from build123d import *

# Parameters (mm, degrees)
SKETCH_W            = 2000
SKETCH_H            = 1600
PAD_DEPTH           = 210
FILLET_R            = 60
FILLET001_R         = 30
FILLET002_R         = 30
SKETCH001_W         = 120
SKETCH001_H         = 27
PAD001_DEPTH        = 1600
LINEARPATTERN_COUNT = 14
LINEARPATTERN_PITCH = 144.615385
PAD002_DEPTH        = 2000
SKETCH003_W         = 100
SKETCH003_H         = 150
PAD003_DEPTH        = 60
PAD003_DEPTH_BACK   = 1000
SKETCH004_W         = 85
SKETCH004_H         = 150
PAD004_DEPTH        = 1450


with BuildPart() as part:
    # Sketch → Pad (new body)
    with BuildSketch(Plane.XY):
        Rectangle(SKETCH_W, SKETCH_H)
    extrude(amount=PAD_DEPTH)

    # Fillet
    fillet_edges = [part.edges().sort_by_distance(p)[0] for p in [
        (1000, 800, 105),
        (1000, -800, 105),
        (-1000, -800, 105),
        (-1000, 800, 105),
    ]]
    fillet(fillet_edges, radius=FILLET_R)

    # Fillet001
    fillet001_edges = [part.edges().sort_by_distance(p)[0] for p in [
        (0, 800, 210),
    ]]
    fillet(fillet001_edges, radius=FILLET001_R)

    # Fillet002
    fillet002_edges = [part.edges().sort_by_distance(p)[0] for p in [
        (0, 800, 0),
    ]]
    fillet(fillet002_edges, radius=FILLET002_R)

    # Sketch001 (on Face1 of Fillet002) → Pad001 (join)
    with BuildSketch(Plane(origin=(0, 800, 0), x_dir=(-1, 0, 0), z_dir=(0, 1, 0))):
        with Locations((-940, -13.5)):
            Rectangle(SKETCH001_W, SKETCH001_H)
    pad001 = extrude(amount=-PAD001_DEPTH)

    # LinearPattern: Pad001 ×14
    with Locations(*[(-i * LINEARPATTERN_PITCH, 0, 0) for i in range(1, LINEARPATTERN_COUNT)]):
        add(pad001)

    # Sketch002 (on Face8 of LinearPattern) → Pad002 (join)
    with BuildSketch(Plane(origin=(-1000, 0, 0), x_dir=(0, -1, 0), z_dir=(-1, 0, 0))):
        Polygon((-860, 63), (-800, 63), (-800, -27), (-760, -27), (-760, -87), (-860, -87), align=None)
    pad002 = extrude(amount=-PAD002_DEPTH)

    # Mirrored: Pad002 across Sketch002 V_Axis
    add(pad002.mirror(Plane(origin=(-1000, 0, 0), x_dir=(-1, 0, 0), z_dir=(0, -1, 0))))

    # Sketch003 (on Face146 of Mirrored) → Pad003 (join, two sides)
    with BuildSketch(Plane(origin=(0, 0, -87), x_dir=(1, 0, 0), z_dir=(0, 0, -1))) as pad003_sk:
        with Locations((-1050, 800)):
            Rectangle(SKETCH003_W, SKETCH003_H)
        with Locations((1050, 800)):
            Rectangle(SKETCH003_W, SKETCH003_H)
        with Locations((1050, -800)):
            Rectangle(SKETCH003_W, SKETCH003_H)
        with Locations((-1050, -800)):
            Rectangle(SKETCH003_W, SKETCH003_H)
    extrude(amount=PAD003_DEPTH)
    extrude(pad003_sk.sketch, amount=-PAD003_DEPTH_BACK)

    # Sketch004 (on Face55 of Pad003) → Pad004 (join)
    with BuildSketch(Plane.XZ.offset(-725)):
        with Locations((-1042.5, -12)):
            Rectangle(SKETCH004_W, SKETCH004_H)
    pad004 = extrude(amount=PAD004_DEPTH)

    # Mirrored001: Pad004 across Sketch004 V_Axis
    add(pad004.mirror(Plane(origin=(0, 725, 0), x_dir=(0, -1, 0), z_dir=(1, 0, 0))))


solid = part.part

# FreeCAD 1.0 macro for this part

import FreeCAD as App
import Part
import Sketcher

V = App.Vector
Q = App.Units.Quantity


def edges_at(feature, points):
    """Names of the edges that pass closest to the given points."""
    edges = feature.Shape.Edges
    near = lambda p: min(range(len(edges)), key=lambda i: edges[i].distToShape(Part.Vertex(*p))[0])
    return sorted({f"Edge{near(p) + 1}" for p in points})


def add_polygon(sketch, points):
    """Adds a closed chain of lines whose ends are joined by coincident constraints."""
    first, n = sketch.GeometryCount, len(points)
    for a, b in zip(points, points[1:] + points[:1]):
        sketch.addGeometry(Part.LineSegment(App.Vector(*a, 0), App.Vector(*b, 0)), False)
    for i in range(n):
        sketch.addConstraint(Sketcher.Constraint("Coincident", first + i, 2, first + (i + 1) % n, 1))

doc = App.newDocument("Part")
params = doc.addObject("Spreadsheet::Sheet", "Params")
for row, (alias, value) in enumerate([
    ("sketch1_width", "2000 mm"),
    ("sketch1_height", "1600 mm"),
    ("pad1_length", "210 mm"),
    ("fillet_radius", "60 mm"),
    ("fillet2_radius", "30 mm"),
    ("fillet3_radius", "30 mm"),
    ("sketch2_width", "120 mm"),
    ("sketch2_height", "27 mm"),
    ("pad2_length", "1600 mm"),
    ("linearpattern_pitch", "144.615385 mm"),
    ("sketch3_width", "60 mm"),
    ("sketch3_width2", "100 mm"),
    ("sketch3_height", "150 mm"),
    ("pad3_length", "2000 mm"),
    ("sketch4_width", "100 mm"),
    ("sketch4_height", "150 mm"),
    ("pad4_length", "60 mm"),
    ("pad4_length2", "1000 mm"),
    ("sketch5_width", "85 mm"),
    ("sketch5_height", "150 mm"),
    ("pad5_length", "1450 mm"),
], start=1):
    params.set(f"A{row}", alias)
    params.set(f"B{row}", "=" + value)
    params.setAlias(f"B{row}", alias)

body = doc.addObject("PartDesign::Body", "Body")

# Sketch on XY plane
sketch1 = body.newObject("Sketcher::SketchObject", "Sketch")
sketch1.AttachmentSupport = (doc.getObject("XY_Plane"), [""])
sketch1.MapMode = "FlatFace"
add_polygon(sketch1, [(-1000, 800), (-1000, -800), (1000, -800), (1000, 800)])  # lines 0-3
sketch1.addConstraint([
    Sketcher.Constraint("Vertical", 0),
    Sketcher.Constraint("Horizontal", 1),
    Sketcher.Constraint("Vertical", 2),
    Sketcher.Constraint("Horizontal", 3),
    Sketcher.Constraint("Symmetric", 0, 2, 2, 2, -1, 1),
    Sketcher.Constraint("DistanceX", 1, 1, 1, 2, Q("2000 mm")),
    Sketcher.Constraint("DistanceY", 0, 2, 0, 1, Q("1600 mm")),
])
sketch1.setExpression("Constraints[9]", "Params.sketch1_width")
sketch1.setExpression("Constraints[10]", "Params.sketch1_height")
pad1 = body.newObject("PartDesign::Pad", "Pad")
pad1.Profile = sketch1
pad1.setExpression("Length", "Params.pad1_length")
doc.recompute()

fillet = body.newObject("PartDesign::Fillet", "Fillet")
fillet.Base = (pad1, edges_at(pad1, [
    (1000, 800, 105),
    (1000, -800, 105),
    (-1000, -800, 105),
    (-1000, 800, 105),
]))
fillet.setExpression("Radius", "Params.fillet_radius")
doc.recompute()

fillet2 = body.newObject("PartDesign::Fillet", "Fillet001")
fillet2.Base = (fillet, edges_at(fillet, [(0, 800, 210)]))
fillet2.setExpression("Radius", "Params.fillet2_radius")
doc.recompute()

fillet3 = body.newObject("PartDesign::Fillet", "Fillet002")
fillet3.Base = (fillet2, edges_at(fillet2, [(0, 800, 0)]))
fillet3.setExpression("Radius", "Params.fillet3_radius")

# Sketch on XZ plane
sketch2 = body.newObject("Sketcher::SketchObject", "Sketch001")
sketch2.AttachmentSupport = (doc.getObject("XZ_Plane"), [""])
sketch2.MapMode = "FlatFace"
sketch2.AttachmentOffset = App.Placement(V(0, 0, -800), App.Rotation())
add_polygon(sketch2, [(1000, 0), (1000, -27), (880, -27), (880, 0)])  # lines 0-3
sketch2.addConstraint([
    Sketcher.Constraint("Vertical", 0),
    Sketcher.Constraint("Horizontal", 1),
    Sketcher.Constraint("Vertical", 2),
    Sketcher.Constraint("Horizontal", 3),
    Sketcher.Constraint("PointOnObject", 2, 2, -1),
    Sketcher.Constraint("DistanceX", 1, 2, 1, 1, Q("120 mm")),
    Sketcher.Constraint("DistanceY", 0, 2, 0, 1, Q("27 mm")),
    Sketcher.Constraint("DistanceX", -1, 1, 0, 2, Q("1000 mm")),
])
sketch2.setExpression("Constraints[9]", "Params.sketch2_width")
sketch2.setExpression("Constraints[10]", "Params.sketch2_height")
pad2 = body.newObject("PartDesign::Pad", "Pad001")
pad2.Profile = sketch2
pad2.setExpression("Length", "Params.pad2_length")
doc.recompute()

linearpattern = body.newObject("PartDesign::LinearPattern", "LinearPattern")
linearpattern.Originals = [pad2]
linearpattern.Direction = (doc.getObject("X_Axis"), [""])
linearpattern.Mode = "offset"
linearpattern.setExpression("Offset", "Params.linearpattern_pitch")
linearpattern.Occurrences = 14
linearpattern.Reversed = True
body.Tip = linearpattern

# Sketch on YZ plane
sketch3 = body.newObject("Sketcher::SketchObject", "Sketch002")
sketch3.AttachmentSupport = (doc.getObject("YZ_Plane"), [""])
sketch3.MapMode = "FlatFace"
sketch3.AttachmentOffset = App.Placement(V(0, 0, -1000), App.Rotation())
add_polygon(sketch3, [(800, 63), (860, 63), (860, -87), (760, -87), (760, -27), (800, -27)])  # lines 0-5
sketch3.addConstraint([
    Sketcher.Constraint("Horizontal", 0),
    Sketcher.Constraint("Vertical", 1),
    Sketcher.Constraint("Horizontal", 2),
    Sketcher.Constraint("Vertical", 3),
    Sketcher.Constraint("Horizontal", 4),
    Sketcher.Constraint("Vertical", 5),
    Sketcher.Constraint("Equal", 0, 3),
    Sketcher.Constraint("DistanceX", 0, 1, 0, 2, Q("60 mm")),
    Sketcher.Constraint("DistanceX", 2, 2, 2, 1, Q("100 mm")),
    Sketcher.Constraint("DistanceY", 1, 2, 1, 1, Q("150 mm")),
    Sketcher.Constraint("DistanceX", -1, 1, 0, 2, Q("860 mm")),
    Sketcher.Constraint("DistanceY", -1, 1, 0, 2, Q("63 mm")),
])
sketch3.setExpression("Constraints[13]", "Params.sketch3_width")
sketch3.setExpression("Constraints[14]", "Params.sketch3_width2")
sketch3.setExpression("Constraints[15]", "Params.sketch3_height")
pad3 = body.newObject("PartDesign::Pad", "Pad002")
pad3.Profile = sketch3
pad3.setExpression("Length", "Params.pad3_length")
doc.recompute()

mirrored = body.newObject("PartDesign::Mirrored", "Mirrored")
mirrored.Originals = [pad3]
mirrored.MirrorPlane = (doc.getObject("XZ_Plane"), [""])
body.Tip = mirrored

# Sketch on XY plane
sketch4 = body.newObject("Sketcher::SketchObject", "Sketch003")
sketch4.AttachmentSupport = (doc.getObject("XY_Plane"), [""])
sketch4.MapMode = "FlatFace"
sketch4.AttachmentOffset = App.Placement(V(0, 0, -87), App.Rotation())
add_polygon(sketch4, [(-1100, -875), (-1100, -725), (-1000, -725), (-1000, -875)])  # lines 0-3
add_polygon(sketch4, [(1000, -875), (1000, -725), (1100, -725), (1100, -875)])  # lines 4-7
add_polygon(sketch4, [(1000, 725), (1000, 875), (1100, 875), (1100, 725)])  # lines 8-11
add_polygon(sketch4, [(-1100, 725), (-1100, 875), (-1000, 875), (-1000, 725)])  # lines 12-15
sketch4.addConstraint([
    Sketcher.Constraint("Vertical", 0),
    Sketcher.Constraint("Horizontal", 1),
    Sketcher.Constraint("Vertical", 2),
    Sketcher.Constraint("Horizontal", 3),
    Sketcher.Constraint("Vertical", 4),
    Sketcher.Constraint("Horizontal", 5),
    Sketcher.Constraint("Vertical", 6),
    Sketcher.Constraint("Horizontal", 7),
    Sketcher.Constraint("Vertical", 8),
    Sketcher.Constraint("Horizontal", 9),
    Sketcher.Constraint("Vertical", 10),
    Sketcher.Constraint("Horizontal", 11),
    Sketcher.Constraint("Vertical", 12),
    Sketcher.Constraint("Horizontal", 13),
    Sketcher.Constraint("Vertical", 14),
    Sketcher.Constraint("Horizontal", 15),
    Sketcher.Constraint("Symmetric", 2, 2, 8, 2, -1, 1),
    Sketcher.Constraint("Symmetric", 0, 2, 10, 2, -1, 1),
    Sketcher.Constraint("Symmetric", 6, 2, 12, 2, -1, 1),
    Sketcher.Constraint("Symmetric", 4, 2, 14, 2, -1, 1),
    Sketcher.Constraint("Symmetric", 1, 2, 4, 2, -2),
    Sketcher.Constraint("Symmetric", 3, 2, 6, 2, -2),
    Sketcher.Constraint("DistanceX", 1, 1, 1, 2, Q("100 mm")),
    Sketcher.Constraint("DistanceY", 0, 1, 0, 2, Q("150 mm")),
    Sketcher.Constraint("DistanceX", 0, 2, -1, 1, Q("1100 mm")),
    Sketcher.Constraint("DistanceY", 0, 2, -1, 1, Q("725 mm")),
])
sketch4.setExpression("Constraints[38]", "Params.sketch4_width")
sketch4.setExpression("Constraints[39]", "Params.sketch4_height")
pad4 = body.newObject("PartDesign::Pad", "Pad003")
pad4.Profile = sketch4
pad4.Type = "TwoLengths"
pad4.setExpression("Length", "Params.pad4_length")
pad4.setExpression("Length2", "Params.pad4_length2")
pad4.Reversed = True

# Sketch on XZ plane
sketch5 = body.newObject("Sketcher::SketchObject", "Sketch004")
sketch5.AttachmentSupport = (doc.getObject("XZ_Plane"), [""])
sketch5.MapMode = "FlatFace"
sketch5.AttachmentOffset = App.Placement(V(0, 0, -725), App.Rotation())
add_polygon(sketch5, [(-1085, 63), (-1085, -87), (-1000, -87), (-1000, 63)])  # lines 0-3
sketch5.addConstraint([
    Sketcher.Constraint("Vertical", 0),
    Sketcher.Constraint("Horizontal", 1),
    Sketcher.Constraint("Vertical", 2),
    Sketcher.Constraint("Horizontal", 3),
    Sketcher.Constraint("DistanceX", 1, 1, 1, 2, Q("85 mm")),
    Sketcher.Constraint("DistanceY", 0, 2, 0, 1, Q("150 mm")),
    Sketcher.Constraint("DistanceX", 0, 2, -1, 1, Q("1085 mm")),
    Sketcher.Constraint("DistanceY", 0, 2, -1, 1, Q("87 mm")),
])
sketch5.setExpression("Constraints[8]", "Params.sketch5_width")
sketch5.setExpression("Constraints[9]", "Params.sketch5_height")
pad5 = body.newObject("PartDesign::Pad", "Pad004")
pad5.Profile = sketch5
pad5.setExpression("Length", "Params.pad5_length")
doc.recompute()

mirrored2 = body.newObject("PartDesign::Mirrored", "Mirrored001")
mirrored2.Originals = [pad5]
mirrored2.MirrorPlane = (doc.getObject("YZ_Plane"), [""])
body.Tip = mirrored2

doc.recompute()
